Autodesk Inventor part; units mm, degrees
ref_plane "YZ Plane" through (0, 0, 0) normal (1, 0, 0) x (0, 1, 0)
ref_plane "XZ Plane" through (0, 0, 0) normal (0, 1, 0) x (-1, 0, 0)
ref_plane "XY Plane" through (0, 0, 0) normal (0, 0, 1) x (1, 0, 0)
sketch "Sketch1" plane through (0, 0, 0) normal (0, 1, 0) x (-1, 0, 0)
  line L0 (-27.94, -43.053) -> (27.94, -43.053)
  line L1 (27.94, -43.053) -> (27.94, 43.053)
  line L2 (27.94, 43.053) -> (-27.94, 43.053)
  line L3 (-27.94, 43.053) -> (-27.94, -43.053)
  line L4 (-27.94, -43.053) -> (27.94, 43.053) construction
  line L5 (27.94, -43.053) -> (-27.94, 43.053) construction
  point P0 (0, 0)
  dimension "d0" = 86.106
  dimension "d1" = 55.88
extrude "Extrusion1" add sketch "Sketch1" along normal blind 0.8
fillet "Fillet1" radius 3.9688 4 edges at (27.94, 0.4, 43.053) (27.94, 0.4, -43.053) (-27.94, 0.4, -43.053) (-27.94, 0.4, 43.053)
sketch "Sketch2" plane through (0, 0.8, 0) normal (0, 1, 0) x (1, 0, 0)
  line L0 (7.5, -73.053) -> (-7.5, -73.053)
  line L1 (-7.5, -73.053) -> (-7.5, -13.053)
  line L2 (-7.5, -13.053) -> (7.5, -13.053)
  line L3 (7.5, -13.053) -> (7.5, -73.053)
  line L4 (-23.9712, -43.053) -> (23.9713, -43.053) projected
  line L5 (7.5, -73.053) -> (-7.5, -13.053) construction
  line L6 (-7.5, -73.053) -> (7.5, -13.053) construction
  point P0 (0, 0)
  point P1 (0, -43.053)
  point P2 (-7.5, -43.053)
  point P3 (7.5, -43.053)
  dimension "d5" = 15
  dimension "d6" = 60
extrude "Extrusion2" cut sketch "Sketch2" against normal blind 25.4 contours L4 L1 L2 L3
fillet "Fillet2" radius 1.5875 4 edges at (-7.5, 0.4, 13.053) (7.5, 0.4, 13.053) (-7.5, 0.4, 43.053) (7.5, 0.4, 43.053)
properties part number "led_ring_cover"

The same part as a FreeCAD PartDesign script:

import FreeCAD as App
import Part
import Sketcher

V = App.Vector
Q = App.Units.Quantity


def edges_at(feature, points):
    """Names of the edges that pass closest to the given points."""
    edges = feature.Shape.Edges
    near = lambda p: min(range(len(edges)), key=lambda i: edges[i].distToShape(Part.Vertex(*p))[0])
    return sorted({f"Edge{near(p) + 1}" for p in points})

doc = App.newDocument("Part")
body = doc.addObject("PartDesign::Body", "Body")

sketch1 = doc.addObject("Sketcher::SketchObject", "Sketch")
body.addObject(sketch1)
sketch1.AttachmentSupport = (doc.XZ_Plane, [""])
sketch1.MapMode = "FlatFace"
sketch1.addGeometry([
    Part.LineSegment(V(27.94, 43.053, 0), V(27.94, -43.053, 0)),
    Part.LineSegment(V(27.94, -43.053, 0), V(-27.94, -43.053, 0)),
    Part.LineSegment(V(-27.94, -43.053, 0), V(-27.94, 43.053, 0)),
    Part.LineSegment(V(-27.94, 43.053, 0), V(27.94, 43.053, 0)),
], False)
sketch1.addConstraint([
    Sketcher.Constraint("Coincident", 0, 2, 1, 1),
    Sketcher.Constraint("Coincident", 1, 2, 2, 1),
    Sketcher.Constraint("Coincident", 2, 2, 3, 1),
    Sketcher.Constraint("Coincident", 3, 2, 0, 1),
    Sketcher.Constraint("Vertical", 0),
    Sketcher.Constraint("Horizontal", 1),
    Sketcher.Constraint("Vertical", 2),
    Sketcher.Constraint("Horizontal", 3),
    Sketcher.Constraint("Symmetric", 0, 2, 2, 2, -1, 1),
    Sketcher.Constraint("DistanceX", 1, 2, 1, 1, Q("2.2 in")),
    Sketcher.Constraint("DistanceY", 0, 2, 0, 1, Q("3.39 in")),
])
pad1 = doc.addObject("PartDesign::Pad", "Pad")
body.addObject(pad1)
pad1.Profile = sketch1
pad1.Length = Q("0.0314961 in")
pad1.Reversed = True
doc.recompute()

fillet = doc.addObject("PartDesign::Fillet", "Fillet")
body.addObject(fillet)
fillet.Base = (pad1, edges_at(pad1, [
    (27.94, 0.4, 43.053),
    (27.94, 0.4, -43.053),
    (-27.94, 0.4, -43.053),
    (-27.94, 0.4, 43.053),
]))
fillet.Radius = Q("0.156252 in")

sketch2 = doc.addObject("Sketcher::SketchObject", "Sketch001")
body.addObject(sketch2)
sketch2.AttachmentSupport = (doc.XZ_Plane, [""])
sketch2.MapMode = "FlatFace"
sketch2.AttachmentOffset = App.Placement(V(0, 0, -0.0314961 * 25.4), App.Rotation())
sketch2.addGeometry([
    Part.LineSegment(V(-7.5, 43.053, 0), V(7.5, 43.053, 0)),
    Part.LineSegment(V(7.5, 43.053, 0), V(7.5, 13.053, 0)),
    Part.LineSegment(V(7.5, 13.053, 0), V(-7.5, 13.053, 0)),
    Part.LineSegment(V(-7.5, 13.053, 0), V(-7.5, 43.053, 0)),
], False)
sketch2.addConstraint([
    Sketcher.Constraint("Coincident", 0, 2, 1, 1),
    Sketcher.Constraint("Coincident", 1, 2, 2, 1),
    Sketcher.Constraint("Coincident", 2, 2, 3, 1),
    Sketcher.Constraint("Coincident", 3, 2, 0, 1),
    Sketcher.Constraint("Horizontal", 0),
    Sketcher.Constraint("Vertical", 1),
    Sketcher.Constraint("Horizontal", 2),
    Sketcher.Constraint("Vertical", 3),
    Sketcher.Constraint("DistanceX", 0, 1, 0, 2, Q("15 mm")),
    Sketcher.Constraint("DistanceY", 1, 2, 1, 1, Q("1.1811 in")),
    Sketcher.Constraint("DistanceY", -1, 1, 0, 2, Q("1.695 in")),
    Sketcher.Constraint("DistanceX", -1, 1, 0, 2, Q("7.5 mm")),
])
pocket1 = doc.addObject("PartDesign::Pocket", "Pocket")
body.addObject(pocket1)
pocket1.Profile = sketch2
pocket1.Length = Q("1 in")
pocket1.Reversed = True
doc.recompute()

fillet2 = doc.addObject("PartDesign::Fillet", "Fillet001")
body.addObject(fillet2)
fillet2.Base = (pocket1, edges_at(pocket1, [
    (-7.5, 0.4, 13.053),
    (7.5, 0.4, 13.053),
    (-7.5, 0.4, 43.053),
    (7.5, 0.4, 43.053),
]))
fillet2.Radius = Q("0.0625 in")

doc.recompute()
